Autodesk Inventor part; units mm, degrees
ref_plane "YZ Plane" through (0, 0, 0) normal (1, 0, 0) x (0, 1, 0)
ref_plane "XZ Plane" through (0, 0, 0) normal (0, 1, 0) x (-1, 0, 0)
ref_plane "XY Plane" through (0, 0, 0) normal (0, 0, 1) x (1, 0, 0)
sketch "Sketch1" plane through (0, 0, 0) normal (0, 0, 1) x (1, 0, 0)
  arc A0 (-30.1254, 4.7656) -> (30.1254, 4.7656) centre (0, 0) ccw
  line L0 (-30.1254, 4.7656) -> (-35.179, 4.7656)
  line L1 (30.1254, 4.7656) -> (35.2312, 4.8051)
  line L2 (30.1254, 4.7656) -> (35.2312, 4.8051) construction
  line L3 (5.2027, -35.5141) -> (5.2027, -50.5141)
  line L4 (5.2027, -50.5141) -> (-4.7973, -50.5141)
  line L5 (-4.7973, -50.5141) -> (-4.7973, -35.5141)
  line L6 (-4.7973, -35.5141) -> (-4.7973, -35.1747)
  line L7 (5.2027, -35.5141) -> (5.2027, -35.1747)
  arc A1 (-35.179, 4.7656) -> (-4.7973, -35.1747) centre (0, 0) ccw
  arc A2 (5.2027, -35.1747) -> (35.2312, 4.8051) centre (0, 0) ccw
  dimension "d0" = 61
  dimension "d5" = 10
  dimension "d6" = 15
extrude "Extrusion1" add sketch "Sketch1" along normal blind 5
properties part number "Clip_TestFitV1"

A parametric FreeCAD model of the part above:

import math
import FreeCAD as App
import Part
import Sketcher

V = App.Vector

doc = App.newDocument("Part")
body = doc.addObject("PartDesign::Body", "Body")

# Sketch on XY plane
sketch1 = body.newObject("Sketcher::SketchObject", "Sketch")
sketch1.AttachmentSupport = (doc.getObject("XY_Plane"), [""])
sketch1.MapMode = "FlatFace"
sketch1.addGeometry(Part.ArcOfCircle(Part.Circle(V(0, 0, 0), V(0, 0, 1), 31), math.radians(171), math.radians(369)), False)
sketch1.addGeometry(Part.LineSegment(V(-30, 5, 0), V(-35, 5, 0)), False)
sketch1.addGeometry(Part.ArcOfCircle(Part.Circle(V(0, 0, 0), V(0, 0, 1), 36), math.radians(172), math.radians(262)), False)
sketch1.addGeometry(Part.LineSegment(V(-5, -35, 0), V(-5, -51, 0)), False)
sketch1.addGeometry(Part.LineSegment(V(-5, -51, 0), V(5, -51, 0)), False)
sketch1.addGeometry(Part.LineSegment(V(5, -51, 0), V(5, -35, 0)), False)
sketch1.addGeometry(Part.ArcOfCircle(Part.Circle(V(0, 0, 0), V(0, 0, 1), 36), math.radians(-82), math.radians(8)), False)
sketch1.addGeometry(Part.LineSegment(V(35, 5, 0), V(30, 5, 0)), False)
sketch1.addConstraint(Sketcher.Constraint("Coincident", 0, 1, 1, 1))
sketch1.addConstraint(Sketcher.Constraint("Coincident", 1, 2, 2, 1))
sketch1.addConstraint(Sketcher.Constraint("Coincident", 2, 2, 3, 1))
sketch1.addConstraint(Sketcher.Constraint("Coincident", 3, 2, 4, 1))
sketch1.addConstraint(Sketcher.Constraint("Coincident", 4, 2, 5, 1))
sketch1.addConstraint(Sketcher.Constraint("Coincident", 5, 2, 6, 1))
sketch1.addConstraint(Sketcher.Constraint("Coincident", 6, 2, 7, 1))
sketch1.addConstraint(Sketcher.Constraint("Coincident", 7, 2, 0, 2))
sketch1.addConstraint(Sketcher.Constraint("Horizontal", 1))
sketch1.addConstraint(Sketcher.Constraint("Vertical", 3))
sketch1.addConstraint(Sketcher.Constraint("Horizontal", 4))
sketch1.addConstraint(Sketcher.Constraint("Vertical", 5))
sketch1.addConstraint(Sketcher.Constraint("Coincident", 0, 3, -1, 1))
sketch1.addConstraint(Sketcher.Constraint("Coincident", 2, 3, -1, 1))
sketch1.addConstraint(Sketcher.Constraint("Coincident", 6, 3, -1, 1))
sketch1.addConstraint(Sketcher.Constraint("Horizontal", 2, 2, 5, 2))
sketch1.addConstraint(Sketcher.Constraint("Horizontal", 1, 2, 7, 2))
sketch1.addConstraint(Sketcher.Constraint("Radius", 0, 30.5))
sketch1.addConstraint(Sketcher.Constraint("DistanceX", 4, 1, 4, 2, 10.0))
sketch1.addConstraint(Sketcher.Constraint("Radius", 2, 35.5003))
sketch1.addConstraint(Sketcher.Constraint("Radius", 6, 35.5574))
sketch1.addConstraint(Sketcher.Constraint("Distance", 7, 5.106))
sketch1.addConstraint(Sketcher.Constraint("DistanceX", 1, 2, 1, 1, 5.0536))
sketch1.addConstraint(Sketcher.Constraint("DistanceY", 3, 2, 3, 1, 15.3394))
pad1 = body.newObject("PartDesign::Pad", "Pad")
pad1.Profile = sketch1
pad1.Length = 5

doc.recompute()
